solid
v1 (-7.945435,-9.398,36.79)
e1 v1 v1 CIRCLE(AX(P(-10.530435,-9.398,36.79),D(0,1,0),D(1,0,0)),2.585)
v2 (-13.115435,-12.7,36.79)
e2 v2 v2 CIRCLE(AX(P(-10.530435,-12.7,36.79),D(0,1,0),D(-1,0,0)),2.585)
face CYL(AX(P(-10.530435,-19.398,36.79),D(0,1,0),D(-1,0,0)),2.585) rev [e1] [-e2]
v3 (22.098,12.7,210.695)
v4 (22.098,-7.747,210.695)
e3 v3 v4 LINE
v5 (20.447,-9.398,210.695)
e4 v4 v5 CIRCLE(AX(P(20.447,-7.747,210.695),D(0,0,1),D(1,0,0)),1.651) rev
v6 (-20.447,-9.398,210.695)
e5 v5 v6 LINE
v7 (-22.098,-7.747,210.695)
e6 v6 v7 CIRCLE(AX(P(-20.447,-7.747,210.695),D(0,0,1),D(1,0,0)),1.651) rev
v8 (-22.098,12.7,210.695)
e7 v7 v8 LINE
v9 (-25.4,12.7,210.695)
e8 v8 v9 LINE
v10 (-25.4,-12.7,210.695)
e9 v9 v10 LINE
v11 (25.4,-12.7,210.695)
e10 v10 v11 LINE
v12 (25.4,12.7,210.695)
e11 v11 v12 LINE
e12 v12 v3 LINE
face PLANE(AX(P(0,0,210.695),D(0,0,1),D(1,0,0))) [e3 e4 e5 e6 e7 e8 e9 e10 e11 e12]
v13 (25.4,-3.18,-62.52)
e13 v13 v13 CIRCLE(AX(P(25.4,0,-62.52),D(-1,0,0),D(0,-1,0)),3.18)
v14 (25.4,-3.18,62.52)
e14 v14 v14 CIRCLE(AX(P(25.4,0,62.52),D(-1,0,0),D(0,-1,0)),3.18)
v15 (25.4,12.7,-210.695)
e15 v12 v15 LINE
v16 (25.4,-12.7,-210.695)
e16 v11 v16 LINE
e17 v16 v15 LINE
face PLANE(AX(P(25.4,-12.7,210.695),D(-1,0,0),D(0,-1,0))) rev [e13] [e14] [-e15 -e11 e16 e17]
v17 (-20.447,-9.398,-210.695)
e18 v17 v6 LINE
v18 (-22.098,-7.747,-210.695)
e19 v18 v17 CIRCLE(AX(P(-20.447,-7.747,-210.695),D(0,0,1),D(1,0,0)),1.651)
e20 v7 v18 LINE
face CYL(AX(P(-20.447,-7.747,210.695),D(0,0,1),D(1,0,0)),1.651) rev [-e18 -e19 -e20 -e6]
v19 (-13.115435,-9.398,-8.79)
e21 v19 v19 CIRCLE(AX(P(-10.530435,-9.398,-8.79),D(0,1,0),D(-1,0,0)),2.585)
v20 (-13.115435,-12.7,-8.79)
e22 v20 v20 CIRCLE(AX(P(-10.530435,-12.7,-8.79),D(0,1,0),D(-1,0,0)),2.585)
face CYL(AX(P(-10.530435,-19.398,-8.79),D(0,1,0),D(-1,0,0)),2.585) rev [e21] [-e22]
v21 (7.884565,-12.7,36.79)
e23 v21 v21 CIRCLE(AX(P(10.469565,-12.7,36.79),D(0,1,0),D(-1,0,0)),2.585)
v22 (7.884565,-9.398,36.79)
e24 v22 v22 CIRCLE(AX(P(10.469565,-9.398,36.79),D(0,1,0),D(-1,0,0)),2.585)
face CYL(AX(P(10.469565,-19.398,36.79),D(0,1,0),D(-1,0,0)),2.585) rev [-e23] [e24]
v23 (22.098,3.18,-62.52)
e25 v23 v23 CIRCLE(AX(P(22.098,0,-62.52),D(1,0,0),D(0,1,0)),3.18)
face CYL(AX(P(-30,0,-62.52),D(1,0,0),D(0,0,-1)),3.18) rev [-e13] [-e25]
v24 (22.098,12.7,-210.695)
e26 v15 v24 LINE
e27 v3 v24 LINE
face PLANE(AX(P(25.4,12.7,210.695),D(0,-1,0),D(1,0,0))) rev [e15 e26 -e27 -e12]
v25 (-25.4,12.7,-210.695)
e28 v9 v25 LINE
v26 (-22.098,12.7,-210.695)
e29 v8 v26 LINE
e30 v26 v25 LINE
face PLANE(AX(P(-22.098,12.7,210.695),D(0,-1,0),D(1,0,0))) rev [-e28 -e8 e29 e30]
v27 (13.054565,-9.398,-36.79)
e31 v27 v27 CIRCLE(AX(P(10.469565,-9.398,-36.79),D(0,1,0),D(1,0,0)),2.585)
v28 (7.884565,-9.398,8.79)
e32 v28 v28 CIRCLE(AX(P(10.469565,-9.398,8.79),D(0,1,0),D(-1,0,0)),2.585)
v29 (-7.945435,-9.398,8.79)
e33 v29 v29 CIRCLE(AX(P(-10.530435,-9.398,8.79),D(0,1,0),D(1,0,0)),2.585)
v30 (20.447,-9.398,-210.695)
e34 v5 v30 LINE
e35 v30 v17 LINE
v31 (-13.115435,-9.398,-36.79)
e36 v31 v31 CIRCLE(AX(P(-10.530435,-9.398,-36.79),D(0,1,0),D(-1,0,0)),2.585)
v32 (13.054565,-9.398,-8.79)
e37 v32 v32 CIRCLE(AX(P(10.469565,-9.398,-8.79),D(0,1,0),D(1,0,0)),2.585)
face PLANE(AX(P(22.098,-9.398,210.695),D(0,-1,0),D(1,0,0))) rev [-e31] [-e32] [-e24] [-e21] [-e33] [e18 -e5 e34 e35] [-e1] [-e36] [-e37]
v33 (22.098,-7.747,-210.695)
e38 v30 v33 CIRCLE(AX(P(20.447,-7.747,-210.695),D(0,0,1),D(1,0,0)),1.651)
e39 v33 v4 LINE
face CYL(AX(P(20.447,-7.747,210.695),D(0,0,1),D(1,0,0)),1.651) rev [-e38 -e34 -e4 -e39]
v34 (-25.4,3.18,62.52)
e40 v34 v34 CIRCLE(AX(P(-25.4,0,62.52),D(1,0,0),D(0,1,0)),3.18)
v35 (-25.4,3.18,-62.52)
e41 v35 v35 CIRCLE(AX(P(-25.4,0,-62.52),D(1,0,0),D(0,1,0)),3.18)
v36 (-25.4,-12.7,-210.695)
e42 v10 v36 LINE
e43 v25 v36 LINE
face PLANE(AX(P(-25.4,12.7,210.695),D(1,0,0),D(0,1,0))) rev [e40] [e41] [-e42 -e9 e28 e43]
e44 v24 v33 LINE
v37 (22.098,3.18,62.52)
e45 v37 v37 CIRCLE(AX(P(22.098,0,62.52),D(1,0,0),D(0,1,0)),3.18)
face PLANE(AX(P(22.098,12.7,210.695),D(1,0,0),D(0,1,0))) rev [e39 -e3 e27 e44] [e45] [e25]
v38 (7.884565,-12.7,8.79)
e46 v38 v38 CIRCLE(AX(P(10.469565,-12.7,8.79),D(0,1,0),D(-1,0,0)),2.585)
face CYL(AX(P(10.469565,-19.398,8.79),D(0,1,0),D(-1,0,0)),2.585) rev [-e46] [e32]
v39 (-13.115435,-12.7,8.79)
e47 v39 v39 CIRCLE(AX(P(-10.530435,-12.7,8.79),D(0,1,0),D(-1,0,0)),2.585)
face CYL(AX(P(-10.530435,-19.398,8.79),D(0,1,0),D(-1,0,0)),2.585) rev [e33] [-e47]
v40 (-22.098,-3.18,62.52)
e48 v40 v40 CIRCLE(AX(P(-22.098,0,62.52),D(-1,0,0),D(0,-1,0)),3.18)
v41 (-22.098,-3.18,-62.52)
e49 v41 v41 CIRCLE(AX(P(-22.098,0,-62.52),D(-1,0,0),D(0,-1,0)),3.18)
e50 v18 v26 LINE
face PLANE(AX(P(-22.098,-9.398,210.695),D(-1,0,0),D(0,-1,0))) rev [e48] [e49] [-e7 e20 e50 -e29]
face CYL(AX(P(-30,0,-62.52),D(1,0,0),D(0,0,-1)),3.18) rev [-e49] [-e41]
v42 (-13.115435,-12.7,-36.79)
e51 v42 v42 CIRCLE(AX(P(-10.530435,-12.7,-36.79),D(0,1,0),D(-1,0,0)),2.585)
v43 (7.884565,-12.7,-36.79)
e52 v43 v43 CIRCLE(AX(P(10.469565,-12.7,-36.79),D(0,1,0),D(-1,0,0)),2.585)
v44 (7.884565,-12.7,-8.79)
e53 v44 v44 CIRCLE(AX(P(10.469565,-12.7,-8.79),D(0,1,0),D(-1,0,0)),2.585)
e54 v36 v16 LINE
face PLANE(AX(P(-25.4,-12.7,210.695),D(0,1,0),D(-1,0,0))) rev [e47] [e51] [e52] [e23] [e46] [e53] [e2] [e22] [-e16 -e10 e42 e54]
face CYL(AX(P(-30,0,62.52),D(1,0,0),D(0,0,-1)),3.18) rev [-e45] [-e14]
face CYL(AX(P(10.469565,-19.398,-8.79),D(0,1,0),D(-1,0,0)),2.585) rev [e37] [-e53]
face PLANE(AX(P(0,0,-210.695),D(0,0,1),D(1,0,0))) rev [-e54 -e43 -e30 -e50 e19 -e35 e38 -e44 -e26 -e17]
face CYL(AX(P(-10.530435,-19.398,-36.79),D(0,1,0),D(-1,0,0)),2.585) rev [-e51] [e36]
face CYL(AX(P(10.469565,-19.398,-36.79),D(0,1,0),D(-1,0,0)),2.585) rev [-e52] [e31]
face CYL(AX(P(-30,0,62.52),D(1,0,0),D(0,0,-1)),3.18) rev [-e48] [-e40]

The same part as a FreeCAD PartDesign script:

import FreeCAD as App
import Part
import Sketcher
Q = App.Units.Quantity


def edges_at(feature, points):
    """Names of the edges that pass closest to the given points."""
    edges = feature.Shape.Edges
    near = lambda p: min(range(len(edges)), key=lambda i: edges[i].distToShape(Part.Vertex(*p))[0])
    return sorted({f"Edge{near(p) + 1}" for p in points})

doc = App.newDocument("Part")
params = doc.addObject("Spreadsheet::Sheet", "Params")
for row, (alias, value) in enumerate([
    ("sketch1_width", "2 in"),
    ("sketch1_height", "1 in"),
    ("sketch1_width2", "0.13 in"),
    ("sketch1_height2", "0.87 in"),
    ("pad1_length", "421.39 mm"),
    ("fillet_radius", "0.065 in"),
    ("pocket1_length", "10 mm"),
    ("pocket2_length", "60 mm"),
], start=1):
    params.set(f"A{row}", alias)
    params.set(f"B{row}", "=" + value)
    params.setAlias(f"B{row}", alias)

body = doc.addObject("PartDesign::Body", "Body")

sketch1 = body.newObject("Sketcher::SketchObject", "Sketch")
sketch1.AttachmentSupport = (doc.getObject("XY_Plane"), [""])
sketch1.MapMode = "FlatFace"
sketch1.addGeometry([
    Part.LineSegment(App.Vector(-25.4, 12.7, 0), App.Vector(-25.4, -12.7, 0)),
    Part.LineSegment(App.Vector(-25.4, -12.7, 0), App.Vector(25.4, -12.7, 0)),
    Part.LineSegment(App.Vector(25.4, -12.7, 0), App.Vector(25.4, 12.7, 0)),
    Part.LineSegment(App.Vector(25.4, 12.7, 0), App.Vector(22.1, 12.7, 0)),
    Part.LineSegment(App.Vector(22.1, 12.7, 0), App.Vector(22.1, -9.4, 0)),
    Part.LineSegment(App.Vector(22.1, -9.4, 0), App.Vector(-22.1, -9.4, 0)),
    Part.LineSegment(App.Vector(-22.1, -9.4, 0), App.Vector(-22.1, 12.7, 0)),
    Part.LineSegment(App.Vector(-22.1, 12.7, 0), App.Vector(-25.4, 12.7, 0)),
], False)
sketch1.addConstraint([
    Sketcher.Constraint("Coincident", 0, 2, 1, 1),
    Sketcher.Constraint("Coincident", 1, 2, 2, 1),
    Sketcher.Constraint("Coincident", 2, 2, 3, 1),
    Sketcher.Constraint("Coincident", 3, 2, 4, 1),
    Sketcher.Constraint("Coincident", 4, 2, 5, 1),
    Sketcher.Constraint("Coincident", 5, 2, 6, 1),
    Sketcher.Constraint("Coincident", 6, 2, 7, 1),
    Sketcher.Constraint("Coincident", 7, 2, 0, 1),
    Sketcher.Constraint("Vertical", 0),
    Sketcher.Constraint("Horizontal", 1),
    Sketcher.Constraint("Vertical", 2),
    Sketcher.Constraint("Horizontal", 3),
    Sketcher.Constraint("Vertical", 4),
    Sketcher.Constraint("Horizontal", 5),
    Sketcher.Constraint("Vertical", 6),
    Sketcher.Constraint("Horizontal", 7),
    Sketcher.Constraint("Symmetric", 0, 2, 2, 2, -1, 1),
    Sketcher.Constraint("Symmetric", 3, 2, 6, 2, -2),
    Sketcher.Constraint("DistanceX", 1, 1, 1, 2, Q("2 in")),
    Sketcher.Constraint("DistanceY", 0, 2, 0, 1, Q("1 in")),
    Sketcher.Constraint("DistanceX", 3, 2, 3, 1, Q("0.13 in")),
    Sketcher.Constraint("DistanceY", 4, 2, 4, 1, Q("0.87 in")),
])
sketch1.setExpression("Constraints[18]", "Params.sketch1_width")
sketch1.setExpression("Constraints[19]", "Params.sketch1_height")
sketch1.setExpression("Constraints[20]", "Params.sketch1_width2")
sketch1.setExpression("Constraints[21]", "Params.sketch1_height2")
pad1 = body.newObject("PartDesign::Pad", "Pad")
pad1.Profile = sketch1
pad1.setExpression("Length", "Params.pad1_length")
pad1.Midplane = True
doc.recompute()

fillet = body.newObject("PartDesign::Fillet", "Fillet")
fillet.Base = (pad1, edges_at(pad1, [(-22.098, -9.398, 0), (22.098, -9.398, 0)]))
fillet.setExpression("Radius", "Params.fillet_radius")

sketch2 = body.newObject("Sketcher::SketchObject", "Sketch001")
sketch2.AttachmentSupport = (doc.getObject("XZ_Plane"), [""])
sketch2.MapMode = "FlatFace"
sketch2.AttachmentOffset = App.Placement(App.Vector(0, 0, 0.37 * 25.4), App.Rotation())
sketch2.addGeometry([
    Part.Circle(App.Vector(-10.5, -8.8, 0), App.Vector(0, 0, 1), 2.6),
    Part.Circle(App.Vector(10.5, -8.8, 0), App.Vector(0, 0, 1), 2.6),
    Part.Circle(App.Vector(-10.5, -36.8, 0), App.Vector(0, 0, 1), 2.6),
    Part.Circle(App.Vector(10.5, -36.8, 0), App.Vector(0, 0, 1), 2.6),
    Part.Circle(App.Vector(-10.5, 36.8, 0), App.Vector(0, 0, 1), 2.6),
    Part.Circle(App.Vector(10.5, 36.8, 0), App.Vector(0, 0, 1), 2.6),
    Part.Circle(App.Vector(10.5, 8.8, 0), App.Vector(0, 0, 1), 2.6),
    Part.Circle(App.Vector(-10.5, 8.8, 0), App.Vector(0, 0, 1), 2.6),
], False)
sketch2.addConstraint([
    Sketcher.Constraint("Equal", 0, 1),
    Sketcher.Constraint("Equal", 1, 2),
    Sketcher.Constraint("Equal", 2, 3),
    Sketcher.Constraint("Equal", 3, 4),
    Sketcher.Constraint("Equal", 4, 5),
    Sketcher.Constraint("Equal", 5, 6),
    Sketcher.Constraint("Equal", 6, 7),
    Sketcher.Constraint("Symmetric", 2, 3, 4, 3, -1),
    Sketcher.Constraint("Symmetric", 3, 3, 5, 3, -1),
    Sketcher.Constraint("Symmetric", 1, 3, 6, 3, -1),
    Sketcher.Constraint("Symmetric", 0, 3, 7, 3, -1),
    Sketcher.Constraint("Horizontal", 0, 3, 1, 3),
    Sketcher.Constraint("Horizontal", 2, 3, 3, 3),
    Sketcher.Constraint("Vertical", 0, 3, 2, 3),
    Sketcher.Constraint("Vertical", 1, 3, 3, 3),
    Sketcher.Constraint("Diameter", 0, Q("5.17 mm")),
    Sketcher.Constraint("DistanceY", 0, 3, -1, 1, Q("8.79 mm")),
    Sketcher.Constraint("DistanceY", 2, 3, -1, 1, Q("36.79 mm")),
    Sketcher.Constraint("DistanceX", 0, 3, 1, 3, Q("21 mm")),
    Sketcher.Constraint("DistanceX", 0, 3, -1, 1, Q("10.530435 mm")),
])
pocket1 = body.newObject("PartDesign::Pocket", "Pocket")
pocket1.Profile = sketch2
pocket1.setExpression("Length", "Params.pocket1_length")
pocket1.Reversed = True

sketch3 = body.newObject("Sketcher::SketchObject", "Sketch002")
sketch3.AttachmentSupport = (doc.getObject("YZ_Plane"), [""])
sketch3.MapMode = "FlatFace"
sketch3.addGeometry([
    Part.Circle(App.Vector(0, 62.5, 0), App.Vector(0, 0, 1), 3.2),
    Part.Circle(App.Vector(0, -62.5, 0), App.Vector(0, 0, 1), 3.2),
], False)
sketch3.addConstraint([
    Sketcher.Constraint("Equal", 0, 1),
    Sketcher.Constraint("Symmetric", 0, 3, 1, 3, -1, 1),
    Sketcher.Constraint("PointOnObject", 0, 3, -2),
    Sketcher.Constraint("Diameter", 0, Q("6.36 mm")),
    Sketcher.Constraint("DistanceY", -1, 1, 0, 3, Q("62.52 mm")),
])
pocket2 = body.newObject("PartDesign::Pocket", "Pocket001")
pocket2.Profile = sketch3
pocket2.setExpression("Length", "Params.pocket2_length")
pocket2.Midplane = True

doc.recompute()
